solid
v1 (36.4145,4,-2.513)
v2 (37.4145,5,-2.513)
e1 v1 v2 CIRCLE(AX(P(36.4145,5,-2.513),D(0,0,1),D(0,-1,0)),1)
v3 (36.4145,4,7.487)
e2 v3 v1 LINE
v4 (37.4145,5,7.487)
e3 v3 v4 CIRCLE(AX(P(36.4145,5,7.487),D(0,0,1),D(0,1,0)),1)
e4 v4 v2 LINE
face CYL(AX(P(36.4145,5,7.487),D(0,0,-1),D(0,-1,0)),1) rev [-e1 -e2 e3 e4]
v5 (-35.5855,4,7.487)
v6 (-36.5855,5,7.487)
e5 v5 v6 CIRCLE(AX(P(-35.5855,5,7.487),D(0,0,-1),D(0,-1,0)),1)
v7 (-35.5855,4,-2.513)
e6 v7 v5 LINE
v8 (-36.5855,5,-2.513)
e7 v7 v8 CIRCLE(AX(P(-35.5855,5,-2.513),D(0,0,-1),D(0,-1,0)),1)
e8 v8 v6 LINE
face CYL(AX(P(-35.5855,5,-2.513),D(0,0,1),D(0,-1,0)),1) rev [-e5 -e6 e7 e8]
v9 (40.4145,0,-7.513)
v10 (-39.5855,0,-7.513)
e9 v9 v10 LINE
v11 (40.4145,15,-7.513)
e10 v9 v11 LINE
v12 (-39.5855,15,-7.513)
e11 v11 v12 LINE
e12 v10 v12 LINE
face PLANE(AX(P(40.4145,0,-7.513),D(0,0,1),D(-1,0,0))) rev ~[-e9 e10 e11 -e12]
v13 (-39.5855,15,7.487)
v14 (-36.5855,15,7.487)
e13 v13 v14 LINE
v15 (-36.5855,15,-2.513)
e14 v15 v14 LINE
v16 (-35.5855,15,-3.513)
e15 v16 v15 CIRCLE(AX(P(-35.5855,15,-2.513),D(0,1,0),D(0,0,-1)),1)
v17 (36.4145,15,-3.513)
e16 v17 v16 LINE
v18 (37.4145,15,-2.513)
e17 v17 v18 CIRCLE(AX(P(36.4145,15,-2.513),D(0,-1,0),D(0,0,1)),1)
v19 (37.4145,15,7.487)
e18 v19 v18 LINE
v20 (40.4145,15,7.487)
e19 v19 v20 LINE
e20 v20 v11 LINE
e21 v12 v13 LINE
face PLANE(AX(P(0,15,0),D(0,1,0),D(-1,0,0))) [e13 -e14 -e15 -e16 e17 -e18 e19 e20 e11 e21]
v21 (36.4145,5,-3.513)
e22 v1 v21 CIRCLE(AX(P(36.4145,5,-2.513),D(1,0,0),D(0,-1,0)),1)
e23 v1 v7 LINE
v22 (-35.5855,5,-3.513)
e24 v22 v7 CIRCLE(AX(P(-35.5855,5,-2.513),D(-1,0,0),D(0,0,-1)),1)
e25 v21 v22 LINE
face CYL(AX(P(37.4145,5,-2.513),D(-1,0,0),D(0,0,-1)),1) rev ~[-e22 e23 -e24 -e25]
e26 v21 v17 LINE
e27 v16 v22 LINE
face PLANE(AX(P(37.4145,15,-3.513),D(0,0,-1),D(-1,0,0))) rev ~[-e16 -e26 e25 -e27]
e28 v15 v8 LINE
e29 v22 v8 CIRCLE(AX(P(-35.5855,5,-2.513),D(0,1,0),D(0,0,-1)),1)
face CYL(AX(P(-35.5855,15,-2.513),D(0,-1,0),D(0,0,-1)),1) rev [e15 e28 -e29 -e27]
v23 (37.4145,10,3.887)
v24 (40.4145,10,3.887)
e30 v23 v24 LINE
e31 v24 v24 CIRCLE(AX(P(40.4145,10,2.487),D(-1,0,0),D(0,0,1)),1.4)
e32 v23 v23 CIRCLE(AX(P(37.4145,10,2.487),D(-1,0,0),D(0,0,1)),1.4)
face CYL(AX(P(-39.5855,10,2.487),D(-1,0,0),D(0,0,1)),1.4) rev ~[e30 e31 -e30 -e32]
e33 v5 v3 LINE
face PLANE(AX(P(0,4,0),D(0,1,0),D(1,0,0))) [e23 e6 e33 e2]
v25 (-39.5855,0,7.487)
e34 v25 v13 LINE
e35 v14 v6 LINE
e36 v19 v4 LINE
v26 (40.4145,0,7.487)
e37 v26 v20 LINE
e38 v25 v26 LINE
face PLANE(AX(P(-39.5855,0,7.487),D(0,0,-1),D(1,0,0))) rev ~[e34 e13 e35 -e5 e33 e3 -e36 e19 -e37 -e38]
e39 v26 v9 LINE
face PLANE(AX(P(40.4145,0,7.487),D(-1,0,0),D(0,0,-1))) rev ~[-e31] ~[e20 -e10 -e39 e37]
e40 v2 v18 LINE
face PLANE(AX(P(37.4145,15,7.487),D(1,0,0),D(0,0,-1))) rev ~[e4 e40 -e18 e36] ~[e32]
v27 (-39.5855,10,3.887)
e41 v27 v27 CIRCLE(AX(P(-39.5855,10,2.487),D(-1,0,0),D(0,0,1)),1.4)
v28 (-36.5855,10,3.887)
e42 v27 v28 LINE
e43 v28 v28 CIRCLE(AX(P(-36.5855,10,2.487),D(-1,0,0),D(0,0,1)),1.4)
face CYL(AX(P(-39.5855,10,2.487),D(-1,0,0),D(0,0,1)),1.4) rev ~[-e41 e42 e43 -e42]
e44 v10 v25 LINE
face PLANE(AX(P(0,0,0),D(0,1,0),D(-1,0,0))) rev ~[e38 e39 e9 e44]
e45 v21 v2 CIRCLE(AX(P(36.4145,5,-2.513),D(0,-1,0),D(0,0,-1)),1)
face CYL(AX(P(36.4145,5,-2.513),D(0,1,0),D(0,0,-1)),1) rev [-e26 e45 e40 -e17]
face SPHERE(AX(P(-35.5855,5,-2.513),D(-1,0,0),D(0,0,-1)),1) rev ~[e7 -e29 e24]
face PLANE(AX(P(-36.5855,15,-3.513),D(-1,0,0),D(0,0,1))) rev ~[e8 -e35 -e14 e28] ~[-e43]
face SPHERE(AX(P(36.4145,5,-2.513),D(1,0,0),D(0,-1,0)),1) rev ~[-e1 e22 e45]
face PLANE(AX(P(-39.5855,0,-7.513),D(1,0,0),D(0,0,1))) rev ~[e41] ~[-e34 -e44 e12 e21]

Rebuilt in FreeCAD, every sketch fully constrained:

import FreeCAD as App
import Part
import Sketcher


def edges_at(feature, points):
    """Names of the edges that pass closest to the given points."""
    edges = feature.Shape.Edges
    near = lambda p: min(range(len(edges)), key=lambda i: edges[i].distToShape(Part.Vertex(*p))[0])
    return sorted({f"Edge{near(p) + 1}" for p in points})


def add_polygon(sketch, points):
    """Adds a closed chain of lines whose ends are joined by coincident constraints."""
    first, n = sketch.GeometryCount, len(points)
    for a, b in zip(points, points[1:] + points[:1]):
        sketch.addGeometry(Part.LineSegment(App.Vector(*a, 0), App.Vector(*b, 0)), False)
    for i in range(n):
        sketch.addConstraint(Sketcher.Constraint("Coincident", first + i, 2, first + (i + 1) % n, 1))

doc = App.newDocument("Part")
params = doc.addObject("Spreadsheet::Sheet", "Params")
for row, (alias, value) in enumerate([
    ("sketch1_width", "80 mm"),
    ("sketch1_height", "15 mm"),
    ("pad1_length", "15 mm"),
    ("sketch2_width", "74 mm"),
    ("sketch2_height", "11 mm"),
    ("pocket1_length", "11 mm"),
    ("sketch3_diameter", "2.8 mm"),
    ("fillet_radius", "1 mm"),
    ("fillet2_radius", "1 mm"),
    ("fillet3_radius", "1 mm"),
], start=1):
    params.set(f"A{row}", alias)
    params.set(f"B{row}", "=" + value)
    params.setAlias(f"B{row}", alias)

body = doc.addObject("PartDesign::Body", "Body")

sketch1 = body.newObject("Sketcher::SketchObject", "Sketch")
sketch1.AttachmentSupport = (doc.getObject("XZ_Plane"), [""])
sketch1.MapMode = "FlatFace"
add_polygon(sketch1, [(-40, -8), (-40, 7), (40, 7), (40, -8)])
sketch1.addConstraint([
    Sketcher.Constraint("Vertical", 0),
    Sketcher.Constraint("Horizontal", 1),
    Sketcher.Constraint("Vertical", 2),
    Sketcher.Constraint("Horizontal", 3),
    Sketcher.Constraint("DistanceX", 1, 1, 1, 2, 80.0),
    Sketcher.Constraint("DistanceY", 0, 1, 0, 2, 15.0),
    Sketcher.Constraint("DistanceY", -1, 1, 0, 2, 7.487),
    Sketcher.Constraint("DistanceX", 0, 2, -1, 1, 39.5855),
])
sketch1.setExpression("Constraints[8]", "Params.sketch1_width")
sketch1.setExpression("Constraints[9]", "Params.sketch1_height")
pad1 = body.newObject("PartDesign::Pad", "Pad")
pad1.Profile = sketch1
pad1.setExpression("Length", "Params.pad1_length")
pad1.Reversed = True

sketch2 = body.newObject("Sketcher::SketchObject", "Sketch001")
sketch2.AttachmentSupport = (doc.getObject("XZ_Plane"), [""])
sketch2.MapMode = "FlatFace"
sketch2.AttachmentOffset = App.Placement(App.Vector(0, 0, -15), App.Rotation())
add_polygon(sketch2, [(-37, -4), (-37, 7), (37, 7), (37, -4)])
sketch2.addConstraint([
    Sketcher.Constraint("Vertical", 0),
    Sketcher.Constraint("Horizontal", 1),
    Sketcher.Constraint("Vertical", 2),
    Sketcher.Constraint("Horizontal", 3),
    Sketcher.Constraint("DistanceX", 1, 1, 1, 2, 74.0),
    Sketcher.Constraint("DistanceY", 0, 1, 0, 2, 11.0),
    Sketcher.Constraint("DistanceY", -1, 1, 0, 2, 7.487),
    Sketcher.Constraint("DistanceX", 0, 2, -1, 1, 36.5855),
])
sketch2.setExpression("Constraints[8]", "Params.sketch2_width")
sketch2.setExpression("Constraints[9]", "Params.sketch2_height")
pocket1 = body.newObject("PartDesign::Pocket", "Pocket")
pocket1.Profile = sketch2
pocket1.setExpression("Length", "Params.pocket1_length")
pocket1.Reversed = True

sketch3 = body.newObject("Sketcher::SketchObject", "Sketch002")
sketch3.AttachmentSupport = (doc.getObject("YZ_Plane"), [""])
sketch3.MapMode = "FlatFace"
sketch3.AttachmentOffset = App.Placement(App.Vector(0, 0, -39.5855), App.Rotation())
sketch3.addGeometry(Part.Circle(App.Vector(10, 2.5, 0), App.Vector(0, 0, 1), 1.4), False)
sketch3.addConstraint([
    Sketcher.Constraint("Diameter", 0, 2.8),
    Sketcher.Constraint("DistanceX", -1, 1, 0, 3, 10.0),
    Sketcher.Constraint("DistanceY", -1, 1, 0, 3, 2.487),
])
sketch3.setExpression("Constraints[0]", "Params.sketch3_diameter")
pocket2 = body.newObject("PartDesign::Pocket", "Pocket001")
pocket2.Profile = sketch3
pocket2.Type = "ThroughAll"
pocket2.Reversed = True
doc.recompute()

fillet = body.newObject("PartDesign::Fillet", "Fillet")
fillet.Base = (pocket2, edges_at(pocket2, [(0.414, 4, -3.513)]))
fillet.setExpression("Radius", "Params.fillet_radius")
doc.recompute()

fillet2 = body.newObject("PartDesign::Fillet", "Fillet001")
fillet2.Base = (fillet, edges_at(fillet, [(-36.586, 10, -3.513), (-36.586, 4.293, -3.22), (-36.586, 4, 2.487)]))
fillet2.setExpression("Radius", "Params.fillet2_radius")
doc.recompute()

fillet3 = body.newObject("PartDesign::Fillet", "Fillet002")
fillet3.Base = (fillet2, edges_at(fillet2, [(37.414, 4, 2.487), (37.414, 4.293, -3.22), (37.414, 10, -3.513)]))
fillet3.setExpression("Radius", "Params.fillet3_radius")

doc.recompute()
